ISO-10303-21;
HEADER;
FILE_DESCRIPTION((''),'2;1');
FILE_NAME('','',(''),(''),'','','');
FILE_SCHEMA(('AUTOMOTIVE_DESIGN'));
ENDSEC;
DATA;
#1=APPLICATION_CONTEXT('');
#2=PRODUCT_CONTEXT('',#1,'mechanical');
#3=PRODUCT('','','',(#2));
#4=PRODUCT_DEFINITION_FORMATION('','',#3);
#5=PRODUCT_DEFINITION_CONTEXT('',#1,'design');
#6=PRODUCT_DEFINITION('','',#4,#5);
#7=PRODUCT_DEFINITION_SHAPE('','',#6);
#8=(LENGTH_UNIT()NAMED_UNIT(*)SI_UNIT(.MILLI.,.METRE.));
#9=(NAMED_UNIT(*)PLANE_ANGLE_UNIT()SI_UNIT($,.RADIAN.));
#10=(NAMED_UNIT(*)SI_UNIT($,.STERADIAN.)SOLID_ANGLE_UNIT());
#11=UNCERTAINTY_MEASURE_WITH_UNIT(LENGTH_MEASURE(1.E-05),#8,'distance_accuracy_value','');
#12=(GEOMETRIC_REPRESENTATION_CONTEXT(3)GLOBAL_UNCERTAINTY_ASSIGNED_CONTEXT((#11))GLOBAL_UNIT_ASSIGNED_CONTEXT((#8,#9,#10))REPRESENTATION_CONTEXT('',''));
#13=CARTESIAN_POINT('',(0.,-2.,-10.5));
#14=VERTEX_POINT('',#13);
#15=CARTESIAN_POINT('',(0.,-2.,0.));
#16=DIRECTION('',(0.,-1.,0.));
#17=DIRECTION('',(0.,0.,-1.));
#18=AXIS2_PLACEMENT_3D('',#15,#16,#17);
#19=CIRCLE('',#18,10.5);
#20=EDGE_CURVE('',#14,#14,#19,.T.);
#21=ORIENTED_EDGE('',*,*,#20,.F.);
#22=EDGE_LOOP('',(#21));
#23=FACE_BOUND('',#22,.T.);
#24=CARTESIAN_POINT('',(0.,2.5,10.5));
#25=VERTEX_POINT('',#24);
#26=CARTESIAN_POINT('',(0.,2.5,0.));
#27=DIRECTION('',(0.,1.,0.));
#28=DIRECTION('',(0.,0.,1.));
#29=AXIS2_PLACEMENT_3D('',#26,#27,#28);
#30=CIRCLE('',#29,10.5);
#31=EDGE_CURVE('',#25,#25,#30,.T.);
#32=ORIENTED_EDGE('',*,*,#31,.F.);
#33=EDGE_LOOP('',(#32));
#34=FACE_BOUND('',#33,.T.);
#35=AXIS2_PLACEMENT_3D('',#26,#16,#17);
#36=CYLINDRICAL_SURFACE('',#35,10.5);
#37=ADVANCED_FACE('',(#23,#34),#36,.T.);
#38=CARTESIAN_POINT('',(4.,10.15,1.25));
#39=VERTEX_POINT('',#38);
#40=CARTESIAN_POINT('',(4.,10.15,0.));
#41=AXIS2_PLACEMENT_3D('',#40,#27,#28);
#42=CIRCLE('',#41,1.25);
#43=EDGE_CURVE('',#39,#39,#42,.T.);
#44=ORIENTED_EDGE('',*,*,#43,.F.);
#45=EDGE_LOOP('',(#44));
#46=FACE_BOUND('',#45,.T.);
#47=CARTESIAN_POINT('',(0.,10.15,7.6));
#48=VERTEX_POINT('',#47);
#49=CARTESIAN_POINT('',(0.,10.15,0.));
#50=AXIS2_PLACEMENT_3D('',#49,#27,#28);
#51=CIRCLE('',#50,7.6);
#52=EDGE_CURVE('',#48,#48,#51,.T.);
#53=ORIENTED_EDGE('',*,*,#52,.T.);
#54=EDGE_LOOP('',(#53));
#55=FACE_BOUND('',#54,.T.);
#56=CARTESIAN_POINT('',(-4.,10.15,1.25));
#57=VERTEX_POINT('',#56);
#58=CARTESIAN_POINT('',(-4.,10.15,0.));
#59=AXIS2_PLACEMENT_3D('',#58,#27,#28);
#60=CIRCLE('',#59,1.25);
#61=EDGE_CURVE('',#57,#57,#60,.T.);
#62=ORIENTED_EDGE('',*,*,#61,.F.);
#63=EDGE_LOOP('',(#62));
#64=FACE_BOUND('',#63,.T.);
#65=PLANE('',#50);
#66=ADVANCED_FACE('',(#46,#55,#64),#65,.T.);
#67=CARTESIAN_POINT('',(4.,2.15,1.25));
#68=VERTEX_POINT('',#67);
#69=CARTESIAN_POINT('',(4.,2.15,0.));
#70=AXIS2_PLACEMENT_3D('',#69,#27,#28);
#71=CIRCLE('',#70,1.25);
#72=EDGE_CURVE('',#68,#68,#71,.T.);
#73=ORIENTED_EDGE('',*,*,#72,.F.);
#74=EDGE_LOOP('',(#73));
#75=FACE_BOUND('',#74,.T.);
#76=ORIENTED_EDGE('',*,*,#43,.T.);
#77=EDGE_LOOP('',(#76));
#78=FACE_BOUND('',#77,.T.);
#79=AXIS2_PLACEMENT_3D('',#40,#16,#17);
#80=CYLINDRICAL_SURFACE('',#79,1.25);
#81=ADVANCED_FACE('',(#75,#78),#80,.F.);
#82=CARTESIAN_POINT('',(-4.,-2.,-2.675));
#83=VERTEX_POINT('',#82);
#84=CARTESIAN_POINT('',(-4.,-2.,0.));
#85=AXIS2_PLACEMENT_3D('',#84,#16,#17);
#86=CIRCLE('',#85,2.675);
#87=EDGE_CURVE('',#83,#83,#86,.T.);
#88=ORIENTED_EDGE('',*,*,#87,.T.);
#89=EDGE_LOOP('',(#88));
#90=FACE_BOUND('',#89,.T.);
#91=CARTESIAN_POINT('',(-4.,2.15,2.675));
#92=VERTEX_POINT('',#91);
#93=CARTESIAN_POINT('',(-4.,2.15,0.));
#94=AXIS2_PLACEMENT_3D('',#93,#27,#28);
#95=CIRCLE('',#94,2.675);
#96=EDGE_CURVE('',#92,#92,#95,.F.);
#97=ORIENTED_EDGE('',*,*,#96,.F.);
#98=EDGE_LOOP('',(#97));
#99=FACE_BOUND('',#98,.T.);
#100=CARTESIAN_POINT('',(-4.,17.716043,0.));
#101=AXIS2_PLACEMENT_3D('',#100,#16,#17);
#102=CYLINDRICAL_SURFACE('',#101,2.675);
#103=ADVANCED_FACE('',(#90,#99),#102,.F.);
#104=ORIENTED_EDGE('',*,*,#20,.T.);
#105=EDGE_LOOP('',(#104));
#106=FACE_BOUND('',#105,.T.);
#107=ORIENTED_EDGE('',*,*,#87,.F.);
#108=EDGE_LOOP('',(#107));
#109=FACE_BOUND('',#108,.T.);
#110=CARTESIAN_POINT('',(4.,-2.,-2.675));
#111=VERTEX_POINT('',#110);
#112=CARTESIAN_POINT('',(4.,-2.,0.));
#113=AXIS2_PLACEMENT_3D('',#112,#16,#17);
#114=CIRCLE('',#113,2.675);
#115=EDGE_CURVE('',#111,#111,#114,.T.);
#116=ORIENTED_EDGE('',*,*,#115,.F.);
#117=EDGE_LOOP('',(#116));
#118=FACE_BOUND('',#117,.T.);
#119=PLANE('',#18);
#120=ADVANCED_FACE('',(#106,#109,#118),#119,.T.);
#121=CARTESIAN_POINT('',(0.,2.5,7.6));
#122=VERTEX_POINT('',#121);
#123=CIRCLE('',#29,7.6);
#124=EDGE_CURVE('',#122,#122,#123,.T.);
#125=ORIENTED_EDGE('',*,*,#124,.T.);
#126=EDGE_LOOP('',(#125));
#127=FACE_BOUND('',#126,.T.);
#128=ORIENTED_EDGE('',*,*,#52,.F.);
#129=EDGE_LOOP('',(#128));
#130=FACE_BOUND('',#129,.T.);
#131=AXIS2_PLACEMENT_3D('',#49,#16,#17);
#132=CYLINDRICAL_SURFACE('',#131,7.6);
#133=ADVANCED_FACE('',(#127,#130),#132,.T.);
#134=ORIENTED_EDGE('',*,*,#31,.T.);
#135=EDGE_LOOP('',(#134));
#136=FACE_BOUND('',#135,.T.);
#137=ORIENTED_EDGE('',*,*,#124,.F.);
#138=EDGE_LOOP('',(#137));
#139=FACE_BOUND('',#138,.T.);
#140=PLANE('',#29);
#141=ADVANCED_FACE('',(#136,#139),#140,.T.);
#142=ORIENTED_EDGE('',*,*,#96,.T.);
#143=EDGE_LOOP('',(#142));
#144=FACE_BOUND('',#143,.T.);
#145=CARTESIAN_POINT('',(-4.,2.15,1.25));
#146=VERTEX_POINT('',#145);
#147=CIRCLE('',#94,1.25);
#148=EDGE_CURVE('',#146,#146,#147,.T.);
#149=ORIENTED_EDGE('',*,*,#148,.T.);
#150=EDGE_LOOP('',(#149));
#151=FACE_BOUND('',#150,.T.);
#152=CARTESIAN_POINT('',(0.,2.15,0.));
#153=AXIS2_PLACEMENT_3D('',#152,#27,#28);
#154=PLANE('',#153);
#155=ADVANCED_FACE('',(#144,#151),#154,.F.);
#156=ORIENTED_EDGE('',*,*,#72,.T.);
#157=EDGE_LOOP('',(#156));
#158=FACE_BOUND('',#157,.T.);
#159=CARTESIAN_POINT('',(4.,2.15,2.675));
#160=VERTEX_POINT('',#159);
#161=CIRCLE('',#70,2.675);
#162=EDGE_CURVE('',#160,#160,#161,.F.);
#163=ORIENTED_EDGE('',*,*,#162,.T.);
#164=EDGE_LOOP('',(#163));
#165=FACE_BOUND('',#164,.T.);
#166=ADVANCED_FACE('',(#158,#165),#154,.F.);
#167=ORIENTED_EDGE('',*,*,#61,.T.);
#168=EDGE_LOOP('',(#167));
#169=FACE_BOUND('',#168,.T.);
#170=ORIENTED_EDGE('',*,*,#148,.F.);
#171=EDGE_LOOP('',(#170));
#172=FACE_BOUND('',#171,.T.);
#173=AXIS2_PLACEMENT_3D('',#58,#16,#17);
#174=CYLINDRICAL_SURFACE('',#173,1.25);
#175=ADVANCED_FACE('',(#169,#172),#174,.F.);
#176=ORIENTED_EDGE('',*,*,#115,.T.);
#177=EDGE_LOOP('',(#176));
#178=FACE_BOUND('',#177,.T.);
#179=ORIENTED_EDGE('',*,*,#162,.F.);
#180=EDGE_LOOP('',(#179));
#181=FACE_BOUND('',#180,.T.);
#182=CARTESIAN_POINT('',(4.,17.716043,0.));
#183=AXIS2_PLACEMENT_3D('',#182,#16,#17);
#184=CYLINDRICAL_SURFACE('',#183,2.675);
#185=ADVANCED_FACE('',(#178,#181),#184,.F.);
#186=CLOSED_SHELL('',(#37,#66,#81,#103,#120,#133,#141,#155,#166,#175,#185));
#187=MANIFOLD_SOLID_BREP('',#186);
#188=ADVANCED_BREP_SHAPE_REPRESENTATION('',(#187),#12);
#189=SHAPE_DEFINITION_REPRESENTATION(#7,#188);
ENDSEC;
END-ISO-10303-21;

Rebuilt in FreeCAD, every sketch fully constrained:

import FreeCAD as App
import Part
import Sketcher
from FreeCAD import Vector

doc = App.newDocument("Part")
body = doc.addObject("PartDesign::Body", "Body")

# Sketch on XZ plane
sketch1 = doc.addObject("Sketcher::SketchObject", "Sketch")
body.addObject(sketch1)
sketch1.AttachmentSupport = (doc.XZ_Plane, [""])
sketch1.MapMode = "FlatFace"
sketch1.addGeometry(Part.Circle(Vector(0, 0, 0), Vector(0, 0, 1), 7.6), False)
sketch1.addGeometry(Part.Circle(Vector(-4, 0, 0), Vector(0, 0, 1), 1.2), False)
sketch1.addGeometry(Part.Circle(Vector(4, 0, 0), Vector(0, 0, 1), 1.2), False)
sketch1.addConstraint(Sketcher.Constraint("Coincident", 0, 3, -1, 1))
sketch1.addConstraint(Sketcher.Constraint("Equal", 1, 2))
sketch1.addConstraint(Sketcher.Constraint("Symmetric", 1, 3, 2, 3, -1, 1))
sketch1.addConstraint(Sketcher.Constraint("PointOnObject", 1, 3, -1))
sketch1.addConstraint(Sketcher.Constraint("Diameter", 0, 15.2))
sketch1.addConstraint(Sketcher.Constraint("Diameter", 1, 2.5))
sketch1.addConstraint(Sketcher.Constraint("DistanceX", 1, 3, -1, 1, 4.0))
pad1 = doc.addObject("PartDesign::Pad", "Pad")
body.addObject(pad1)
pad1.Profile = sketch1
pad1.Length = 10.15
pad1.Reversed = True

# Sketch on XZ plane
sketch2 = doc.addObject("Sketcher::SketchObject", "Sketch001")
body.addObject(sketch2)
sketch2.AttachmentSupport = (doc.XZ_Plane, [""])
sketch2.MapMode = "FlatFace"
sketch2.addGeometry(Part.Circle(Vector(0, 0, 0), Vector(0, 0, 1), 10.5), False)
sketch2.addGeometry(Part.Circle(Vector(-4, 0, 0), Vector(0, 0, 1), 1.2), False)
sketch2.addGeometry(Part.Circle(Vector(4, 0, 0), Vector(0, 0, 1), 1.2), False)
sketch2.addConstraint(Sketcher.Constraint("Coincident", 0, 3, -1, 1))
sketch2.addConstraint(Sketcher.Constraint("Equal", 1, 2))
sketch2.addConstraint(Sketcher.Constraint("Symmetric", 1, 3, 2, 3, -1, 1))
sketch2.addConstraint(Sketcher.Constraint("PointOnObject", 1, 3, -1))
sketch2.addConstraint(Sketcher.Constraint("Diameter", 0, 21.0))
sketch2.addConstraint(Sketcher.Constraint("Diameter", 1, 2.5))
sketch2.addConstraint(Sketcher.Constraint("DistanceX", 1, 3, -1, 1, 4.0))
pad2 = doc.addObject("PartDesign::Pad", "Pad001")
body.addObject(pad2)
pad2.Profile = sketch2
pad2.Length = 2.5
pad2.Reversed = True

# Sketch on XZ plane
sketch3 = doc.addObject("Sketcher::SketchObject", "Sketch002")
body.addObject(sketch3)
sketch3.AttachmentSupport = (doc.XZ_Plane, [""])
sketch3.MapMode = "FlatFace"
sketch3.addGeometry(Part.Circle(Vector(4, 0, 0), Vector(0, 0, 1), 2.7), False)
sketch3.addGeometry(Part.Circle(Vector(-4, 0, 0), Vector(0, 0, 1), 2.7), False)
sketch3.addConstraint(Sketcher.Constraint("Equal", 0, 1))
sketch3.addConstraint(Sketcher.Constraint("Symmetric", 0, 3, 1, 3, -1, 1))
sketch3.addConstraint(Sketcher.Constraint("PointOnObject", 0, 3, -1))
sketch3.addConstraint(Sketcher.Constraint("Diameter", 0, 5.35))
sketch3.addConstraint(Sketcher.Constraint("DistanceX", -1, 1, 0, 3, 4.0))
pocket1 = doc.addObject("PartDesign::Pocket", "Pocket")
body.addObject(pocket1)
pocket1.Profile = sketch3
pocket1.Length = 2.15

# Sketch on XZ plane
sketch4 = doc.addObject("Sketcher::SketchObject", "Sketch003")
body.addObject(sketch4)
sketch4.AttachmentSupport = (doc.XZ_Plane, [""])
sketch4.MapMode = "FlatFace"
sketch4.addGeometry(Part.Circle(Vector(0, 0, 0), Vector(0, 0, 1), 10.5), False)
sketch4.addGeometry(Part.Circle(Vector(-4, 0, 0), Vector(0, 0, 1), 2.7), False)
sketch4.addGeometry(Part.Circle(Vector(4, 0, 0), Vector(0, 0, 1), 2.7), False)
sketch4.addConstraint(Sketcher.Constraint("Coincident", 0, 3, -1, 1))
sketch4.addConstraint(Sketcher.Constraint("Equal", 1, 2))
sketch4.addConstraint(Sketcher.Constraint("Symmetric", 1, 3, 2, 3, -1, 1))
sketch4.addConstraint(Sketcher.Constraint("PointOnObject", 1, 3, -1))
sketch4.addConstraint(Sketcher.Constraint("Diameter", 0, 21.0))
sketch4.addConstraint(Sketcher.Constraint("Diameter", 1, 5.35))
sketch4.addConstraint(Sketcher.Constraint("DistanceX", 1, 3, -1, 1, 4.0))
pad3 = doc.addObject("PartDesign::Pad", "Pad002")
body.addObject(pad3)
pad3.Profile = sketch4
pad3.Length = 2

doc.recompute()
